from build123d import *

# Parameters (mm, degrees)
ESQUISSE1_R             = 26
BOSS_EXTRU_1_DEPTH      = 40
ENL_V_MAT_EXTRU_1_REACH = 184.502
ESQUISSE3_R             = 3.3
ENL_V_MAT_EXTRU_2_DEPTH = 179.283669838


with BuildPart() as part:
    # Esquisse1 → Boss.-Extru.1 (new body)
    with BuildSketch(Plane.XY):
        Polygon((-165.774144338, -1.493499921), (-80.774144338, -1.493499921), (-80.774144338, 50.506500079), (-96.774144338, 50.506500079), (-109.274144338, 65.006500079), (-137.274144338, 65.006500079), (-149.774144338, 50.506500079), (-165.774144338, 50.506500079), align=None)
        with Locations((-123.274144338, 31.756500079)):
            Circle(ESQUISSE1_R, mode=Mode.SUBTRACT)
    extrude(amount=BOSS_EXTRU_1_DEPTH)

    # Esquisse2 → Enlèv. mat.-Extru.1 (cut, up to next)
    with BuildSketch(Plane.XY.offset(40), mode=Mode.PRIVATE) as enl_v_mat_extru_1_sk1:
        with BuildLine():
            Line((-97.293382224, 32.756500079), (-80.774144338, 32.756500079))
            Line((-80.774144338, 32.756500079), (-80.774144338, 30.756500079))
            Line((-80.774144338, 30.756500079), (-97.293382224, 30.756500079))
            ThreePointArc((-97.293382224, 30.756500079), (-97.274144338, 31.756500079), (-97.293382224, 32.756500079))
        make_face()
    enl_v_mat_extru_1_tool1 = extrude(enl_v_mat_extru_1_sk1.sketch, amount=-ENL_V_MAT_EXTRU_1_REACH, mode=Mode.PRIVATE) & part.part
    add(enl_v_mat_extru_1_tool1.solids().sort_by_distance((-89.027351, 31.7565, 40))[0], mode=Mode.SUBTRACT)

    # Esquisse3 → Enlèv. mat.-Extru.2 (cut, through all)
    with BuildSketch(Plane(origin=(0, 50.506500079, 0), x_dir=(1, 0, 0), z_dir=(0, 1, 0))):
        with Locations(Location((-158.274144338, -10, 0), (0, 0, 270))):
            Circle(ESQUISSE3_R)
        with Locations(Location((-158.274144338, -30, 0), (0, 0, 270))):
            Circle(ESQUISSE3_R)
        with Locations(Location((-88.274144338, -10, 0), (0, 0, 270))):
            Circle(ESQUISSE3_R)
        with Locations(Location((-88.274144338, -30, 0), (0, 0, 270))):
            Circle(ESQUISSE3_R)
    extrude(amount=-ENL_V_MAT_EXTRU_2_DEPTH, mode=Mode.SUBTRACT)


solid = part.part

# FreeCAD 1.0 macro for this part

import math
import FreeCAD as App
import Part
import Sketcher

V = App.Vector


def add_polygon(sketch, points):
    """Adds a closed chain of lines whose ends are joined by coincident constraints."""
    first, n = sketch.GeometryCount, len(points)
    for a, b in zip(points, points[1:] + points[:1]):
        sketch.addGeometry(Part.LineSegment(App.Vector(*a, 0), App.Vector(*b, 0)), False)
    for i in range(n):
        sketch.addConstraint(Sketcher.Constraint("Coincident", first + i, 2, first + (i + 1) % n, 1))

doc = App.newDocument("Part")
body = doc.addObject("PartDesign::Body", "Body")

sketch1 = body.newObject("Sketcher::SketchObject", "Sketch")
sketch1.AttachmentSupport = (doc.getObject("XY_Plane"), [""])
sketch1.MapMode = "FlatFace"
add_polygon(sketch1, [(-166, -1), (-81, -1), (-81, 51), (-97, 51), (-109, 65), (-137, 65), (-150, 51), (-166, 51)])
sketch1.addGeometry(Part.Circle(V(-123, 32, 0), V(0, 0, 1), 26), False)
sketch1.addConstraint(Sketcher.Constraint("Horizontal", 0))
sketch1.addConstraint(Sketcher.Constraint("Vertical", 1))
sketch1.addConstraint(Sketcher.Constraint("Horizontal", 2))
sketch1.addConstraint(Sketcher.Constraint("Horizontal", 4))
sketch1.addConstraint(Sketcher.Constraint("Horizontal", 6))
sketch1.addConstraint(Sketcher.Constraint("Vertical", 7))
sketch1.addConstraint(Sketcher.Constraint("Horizontal", 2, 2, 5, 2))
sketch1.addConstraint(Sketcher.Constraint("Equal", 2, 6))
sketch1.addConstraint(Sketcher.Constraint("Equal", 3, 5))
sketch1.addConstraint(Sketcher.Constraint("Diameter", 8, 52.0))
sketch1.addConstraint(Sketcher.Constraint("DistanceX", 0, 1, 0, 2, 85.0))
sketch1.addConstraint(Sketcher.Constraint("DistanceX", 2, 2, 2, 1, 16.0))
sketch1.addConstraint(Sketcher.Constraint("DistanceX", 4, 2, 4, 1, 28.0))
sketch1.addConstraint(Sketcher.Constraint("DistanceY", 1, 1, 1, 2, 52.0))
sketch1.addConstraint(Sketcher.Constraint("DistanceX", 8, 3, 3, 2, 14.0))
sketch1.addConstraint(Sketcher.Constraint("DistanceY", 2, 2, 3, 2, 14.5))
sketch1.addConstraint(Sketcher.Constraint("DistanceY", 0, 2, 8, 3, 33.25))
sketch1.addConstraint(Sketcher.Constraint("DistanceY", -1, 1, 8, 3, 31.7565))
sketch1.addConstraint(Sketcher.Constraint("DistanceX", 8, 3, -1, 1, 123.274144))
pad1 = body.newObject("PartDesign::Pad", "Pad")
pad1.Profile = sketch1
pad1.Length = 40

sketch2 = body.newObject("Sketcher::SketchObject", "Sketch001")
sketch2.AttachmentSupport = (doc.getObject("XY_Plane"), [""])
sketch2.MapMode = "FlatFace"
sketch2.AttachmentOffset = App.Placement(V(0, 0, 40), App.Rotation())
sketch2.addGeometry(Part.LineSegment(V(-80.8, 32.8, 0), V(-97.3, 32.8, 0)), False)
sketch2.addGeometry(Part.ArcOfCircle(Part.Circle(V(-123.3, 31.8, 0), V(0, 0, 1), 26), math.radians(-2.2), math.radians(2.2)), False)
sketch2.addGeometry(Part.LineSegment(V(-97.3, 30.8, 0), V(-80.8, 30.8, 0)), False)
sketch2.addGeometry(Part.LineSegment(V(-80.8, 30.8, 0), V(-80.8, 32.8, 0)), False)
sketch2.addConstraint(Sketcher.Constraint("Coincident", 0, 2, 1, 2))
sketch2.addConstraint(Sketcher.Constraint("Coincident", 1, 1, 2, 1))
sketch2.addConstraint(Sketcher.Constraint("Coincident", 2, 2, 3, 1))
sketch2.addConstraint(Sketcher.Constraint("Coincident", 3, 2, 0, 1))
sketch2.addConstraint(Sketcher.Constraint("Horizontal", 0))
sketch2.addConstraint(Sketcher.Constraint("Horizontal", 2))
sketch2.addConstraint(Sketcher.Constraint("Vertical", 3))
sketch2.addConstraint(Sketcher.Constraint("Vertical", 0, 2, 1, 1))
sketch2.addConstraint(Sketcher.Constraint("Radius", 1, 26.000001))
sketch2.addConstraint(Sketcher.Constraint("DistanceY", 3, 1, 3, 2, 2.0))
sketch2.addConstraint(Sketcher.Constraint("DistanceX", 1, 3, 2, 2, 42.500001))
sketch2.addConstraint(Sketcher.Constraint("DistanceY", -1, 1, 1, 3, 31.7565))
sketch2.addConstraint(Sketcher.Constraint("DistanceX", 1, 3, -1, 1, 123.274145))
pocket1 = body.newObject("PartDesign::Pocket", "Pocket")
pocket1.Profile = sketch2
pocket1.Type = "UpToFirst"

sketch3 = body.newObject("Sketcher::SketchObject", "Sketch002")
sketch3.AttachmentSupport = (doc.getObject("XZ_Plane"), [""])
sketch3.MapMode = "FlatFace"
sketch3.AttachmentOffset = App.Placement(V(0, 0, -50.5065), App.Rotation())
sketch3.addGeometry(Part.Circle(V(-158.3, 10, 0), V(0, 0, 1), 3.3), False)
sketch3.addGeometry(Part.Circle(V(-158.3, 30, 0), V(0, 0, 1), 3.3), False)
sketch3.addGeometry(Part.Circle(V(-88.3, 10, 0), V(0, 0, 1), 3.3), False)
sketch3.addGeometry(Part.Circle(V(-88.3, 30, 0), V(0, 0, 1), 3.3), False)
sketch3.addConstraint(Sketcher.Constraint("Equal", 0, 1))
sketch3.addConstraint(Sketcher.Constraint("Equal", 1, 2))
sketch3.addConstraint(Sketcher.Constraint("Equal", 2, 3))
sketch3.addConstraint(Sketcher.Constraint("Horizontal", 0, 3, 2, 3))
sketch3.addConstraint(Sketcher.Constraint("Horizontal", 1, 3, 3, 3))
sketch3.addConstraint(Sketcher.Constraint("Vertical", 0, 3, 1, 3))
sketch3.addConstraint(Sketcher.Constraint("Vertical", 2, 3, 3, 3))
sketch3.addConstraint(Sketcher.Constraint("Diameter", 0, 6.6))
sketch3.addConstraint(Sketcher.Constraint("DistanceY", -1, 1, 0, 3, 10.0))
sketch3.addConstraint(Sketcher.Constraint("DistanceY", -1, 1, 1, 3, 30.0))
sketch3.addConstraint(Sketcher.Constraint("DistanceX", 0, 3, 2, 3, 70.0))
sketch3.addConstraint(Sketcher.Constraint("DistanceX", 0, 3, -1, 1, 158.274144))
pocket2 = body.newObject("PartDesign::Pocket", "Pocket001")
pocket2.Profile = sketch3
pocket2.Type = "ThroughAll"
pocket2.Reversed = True

doc.recompute()
